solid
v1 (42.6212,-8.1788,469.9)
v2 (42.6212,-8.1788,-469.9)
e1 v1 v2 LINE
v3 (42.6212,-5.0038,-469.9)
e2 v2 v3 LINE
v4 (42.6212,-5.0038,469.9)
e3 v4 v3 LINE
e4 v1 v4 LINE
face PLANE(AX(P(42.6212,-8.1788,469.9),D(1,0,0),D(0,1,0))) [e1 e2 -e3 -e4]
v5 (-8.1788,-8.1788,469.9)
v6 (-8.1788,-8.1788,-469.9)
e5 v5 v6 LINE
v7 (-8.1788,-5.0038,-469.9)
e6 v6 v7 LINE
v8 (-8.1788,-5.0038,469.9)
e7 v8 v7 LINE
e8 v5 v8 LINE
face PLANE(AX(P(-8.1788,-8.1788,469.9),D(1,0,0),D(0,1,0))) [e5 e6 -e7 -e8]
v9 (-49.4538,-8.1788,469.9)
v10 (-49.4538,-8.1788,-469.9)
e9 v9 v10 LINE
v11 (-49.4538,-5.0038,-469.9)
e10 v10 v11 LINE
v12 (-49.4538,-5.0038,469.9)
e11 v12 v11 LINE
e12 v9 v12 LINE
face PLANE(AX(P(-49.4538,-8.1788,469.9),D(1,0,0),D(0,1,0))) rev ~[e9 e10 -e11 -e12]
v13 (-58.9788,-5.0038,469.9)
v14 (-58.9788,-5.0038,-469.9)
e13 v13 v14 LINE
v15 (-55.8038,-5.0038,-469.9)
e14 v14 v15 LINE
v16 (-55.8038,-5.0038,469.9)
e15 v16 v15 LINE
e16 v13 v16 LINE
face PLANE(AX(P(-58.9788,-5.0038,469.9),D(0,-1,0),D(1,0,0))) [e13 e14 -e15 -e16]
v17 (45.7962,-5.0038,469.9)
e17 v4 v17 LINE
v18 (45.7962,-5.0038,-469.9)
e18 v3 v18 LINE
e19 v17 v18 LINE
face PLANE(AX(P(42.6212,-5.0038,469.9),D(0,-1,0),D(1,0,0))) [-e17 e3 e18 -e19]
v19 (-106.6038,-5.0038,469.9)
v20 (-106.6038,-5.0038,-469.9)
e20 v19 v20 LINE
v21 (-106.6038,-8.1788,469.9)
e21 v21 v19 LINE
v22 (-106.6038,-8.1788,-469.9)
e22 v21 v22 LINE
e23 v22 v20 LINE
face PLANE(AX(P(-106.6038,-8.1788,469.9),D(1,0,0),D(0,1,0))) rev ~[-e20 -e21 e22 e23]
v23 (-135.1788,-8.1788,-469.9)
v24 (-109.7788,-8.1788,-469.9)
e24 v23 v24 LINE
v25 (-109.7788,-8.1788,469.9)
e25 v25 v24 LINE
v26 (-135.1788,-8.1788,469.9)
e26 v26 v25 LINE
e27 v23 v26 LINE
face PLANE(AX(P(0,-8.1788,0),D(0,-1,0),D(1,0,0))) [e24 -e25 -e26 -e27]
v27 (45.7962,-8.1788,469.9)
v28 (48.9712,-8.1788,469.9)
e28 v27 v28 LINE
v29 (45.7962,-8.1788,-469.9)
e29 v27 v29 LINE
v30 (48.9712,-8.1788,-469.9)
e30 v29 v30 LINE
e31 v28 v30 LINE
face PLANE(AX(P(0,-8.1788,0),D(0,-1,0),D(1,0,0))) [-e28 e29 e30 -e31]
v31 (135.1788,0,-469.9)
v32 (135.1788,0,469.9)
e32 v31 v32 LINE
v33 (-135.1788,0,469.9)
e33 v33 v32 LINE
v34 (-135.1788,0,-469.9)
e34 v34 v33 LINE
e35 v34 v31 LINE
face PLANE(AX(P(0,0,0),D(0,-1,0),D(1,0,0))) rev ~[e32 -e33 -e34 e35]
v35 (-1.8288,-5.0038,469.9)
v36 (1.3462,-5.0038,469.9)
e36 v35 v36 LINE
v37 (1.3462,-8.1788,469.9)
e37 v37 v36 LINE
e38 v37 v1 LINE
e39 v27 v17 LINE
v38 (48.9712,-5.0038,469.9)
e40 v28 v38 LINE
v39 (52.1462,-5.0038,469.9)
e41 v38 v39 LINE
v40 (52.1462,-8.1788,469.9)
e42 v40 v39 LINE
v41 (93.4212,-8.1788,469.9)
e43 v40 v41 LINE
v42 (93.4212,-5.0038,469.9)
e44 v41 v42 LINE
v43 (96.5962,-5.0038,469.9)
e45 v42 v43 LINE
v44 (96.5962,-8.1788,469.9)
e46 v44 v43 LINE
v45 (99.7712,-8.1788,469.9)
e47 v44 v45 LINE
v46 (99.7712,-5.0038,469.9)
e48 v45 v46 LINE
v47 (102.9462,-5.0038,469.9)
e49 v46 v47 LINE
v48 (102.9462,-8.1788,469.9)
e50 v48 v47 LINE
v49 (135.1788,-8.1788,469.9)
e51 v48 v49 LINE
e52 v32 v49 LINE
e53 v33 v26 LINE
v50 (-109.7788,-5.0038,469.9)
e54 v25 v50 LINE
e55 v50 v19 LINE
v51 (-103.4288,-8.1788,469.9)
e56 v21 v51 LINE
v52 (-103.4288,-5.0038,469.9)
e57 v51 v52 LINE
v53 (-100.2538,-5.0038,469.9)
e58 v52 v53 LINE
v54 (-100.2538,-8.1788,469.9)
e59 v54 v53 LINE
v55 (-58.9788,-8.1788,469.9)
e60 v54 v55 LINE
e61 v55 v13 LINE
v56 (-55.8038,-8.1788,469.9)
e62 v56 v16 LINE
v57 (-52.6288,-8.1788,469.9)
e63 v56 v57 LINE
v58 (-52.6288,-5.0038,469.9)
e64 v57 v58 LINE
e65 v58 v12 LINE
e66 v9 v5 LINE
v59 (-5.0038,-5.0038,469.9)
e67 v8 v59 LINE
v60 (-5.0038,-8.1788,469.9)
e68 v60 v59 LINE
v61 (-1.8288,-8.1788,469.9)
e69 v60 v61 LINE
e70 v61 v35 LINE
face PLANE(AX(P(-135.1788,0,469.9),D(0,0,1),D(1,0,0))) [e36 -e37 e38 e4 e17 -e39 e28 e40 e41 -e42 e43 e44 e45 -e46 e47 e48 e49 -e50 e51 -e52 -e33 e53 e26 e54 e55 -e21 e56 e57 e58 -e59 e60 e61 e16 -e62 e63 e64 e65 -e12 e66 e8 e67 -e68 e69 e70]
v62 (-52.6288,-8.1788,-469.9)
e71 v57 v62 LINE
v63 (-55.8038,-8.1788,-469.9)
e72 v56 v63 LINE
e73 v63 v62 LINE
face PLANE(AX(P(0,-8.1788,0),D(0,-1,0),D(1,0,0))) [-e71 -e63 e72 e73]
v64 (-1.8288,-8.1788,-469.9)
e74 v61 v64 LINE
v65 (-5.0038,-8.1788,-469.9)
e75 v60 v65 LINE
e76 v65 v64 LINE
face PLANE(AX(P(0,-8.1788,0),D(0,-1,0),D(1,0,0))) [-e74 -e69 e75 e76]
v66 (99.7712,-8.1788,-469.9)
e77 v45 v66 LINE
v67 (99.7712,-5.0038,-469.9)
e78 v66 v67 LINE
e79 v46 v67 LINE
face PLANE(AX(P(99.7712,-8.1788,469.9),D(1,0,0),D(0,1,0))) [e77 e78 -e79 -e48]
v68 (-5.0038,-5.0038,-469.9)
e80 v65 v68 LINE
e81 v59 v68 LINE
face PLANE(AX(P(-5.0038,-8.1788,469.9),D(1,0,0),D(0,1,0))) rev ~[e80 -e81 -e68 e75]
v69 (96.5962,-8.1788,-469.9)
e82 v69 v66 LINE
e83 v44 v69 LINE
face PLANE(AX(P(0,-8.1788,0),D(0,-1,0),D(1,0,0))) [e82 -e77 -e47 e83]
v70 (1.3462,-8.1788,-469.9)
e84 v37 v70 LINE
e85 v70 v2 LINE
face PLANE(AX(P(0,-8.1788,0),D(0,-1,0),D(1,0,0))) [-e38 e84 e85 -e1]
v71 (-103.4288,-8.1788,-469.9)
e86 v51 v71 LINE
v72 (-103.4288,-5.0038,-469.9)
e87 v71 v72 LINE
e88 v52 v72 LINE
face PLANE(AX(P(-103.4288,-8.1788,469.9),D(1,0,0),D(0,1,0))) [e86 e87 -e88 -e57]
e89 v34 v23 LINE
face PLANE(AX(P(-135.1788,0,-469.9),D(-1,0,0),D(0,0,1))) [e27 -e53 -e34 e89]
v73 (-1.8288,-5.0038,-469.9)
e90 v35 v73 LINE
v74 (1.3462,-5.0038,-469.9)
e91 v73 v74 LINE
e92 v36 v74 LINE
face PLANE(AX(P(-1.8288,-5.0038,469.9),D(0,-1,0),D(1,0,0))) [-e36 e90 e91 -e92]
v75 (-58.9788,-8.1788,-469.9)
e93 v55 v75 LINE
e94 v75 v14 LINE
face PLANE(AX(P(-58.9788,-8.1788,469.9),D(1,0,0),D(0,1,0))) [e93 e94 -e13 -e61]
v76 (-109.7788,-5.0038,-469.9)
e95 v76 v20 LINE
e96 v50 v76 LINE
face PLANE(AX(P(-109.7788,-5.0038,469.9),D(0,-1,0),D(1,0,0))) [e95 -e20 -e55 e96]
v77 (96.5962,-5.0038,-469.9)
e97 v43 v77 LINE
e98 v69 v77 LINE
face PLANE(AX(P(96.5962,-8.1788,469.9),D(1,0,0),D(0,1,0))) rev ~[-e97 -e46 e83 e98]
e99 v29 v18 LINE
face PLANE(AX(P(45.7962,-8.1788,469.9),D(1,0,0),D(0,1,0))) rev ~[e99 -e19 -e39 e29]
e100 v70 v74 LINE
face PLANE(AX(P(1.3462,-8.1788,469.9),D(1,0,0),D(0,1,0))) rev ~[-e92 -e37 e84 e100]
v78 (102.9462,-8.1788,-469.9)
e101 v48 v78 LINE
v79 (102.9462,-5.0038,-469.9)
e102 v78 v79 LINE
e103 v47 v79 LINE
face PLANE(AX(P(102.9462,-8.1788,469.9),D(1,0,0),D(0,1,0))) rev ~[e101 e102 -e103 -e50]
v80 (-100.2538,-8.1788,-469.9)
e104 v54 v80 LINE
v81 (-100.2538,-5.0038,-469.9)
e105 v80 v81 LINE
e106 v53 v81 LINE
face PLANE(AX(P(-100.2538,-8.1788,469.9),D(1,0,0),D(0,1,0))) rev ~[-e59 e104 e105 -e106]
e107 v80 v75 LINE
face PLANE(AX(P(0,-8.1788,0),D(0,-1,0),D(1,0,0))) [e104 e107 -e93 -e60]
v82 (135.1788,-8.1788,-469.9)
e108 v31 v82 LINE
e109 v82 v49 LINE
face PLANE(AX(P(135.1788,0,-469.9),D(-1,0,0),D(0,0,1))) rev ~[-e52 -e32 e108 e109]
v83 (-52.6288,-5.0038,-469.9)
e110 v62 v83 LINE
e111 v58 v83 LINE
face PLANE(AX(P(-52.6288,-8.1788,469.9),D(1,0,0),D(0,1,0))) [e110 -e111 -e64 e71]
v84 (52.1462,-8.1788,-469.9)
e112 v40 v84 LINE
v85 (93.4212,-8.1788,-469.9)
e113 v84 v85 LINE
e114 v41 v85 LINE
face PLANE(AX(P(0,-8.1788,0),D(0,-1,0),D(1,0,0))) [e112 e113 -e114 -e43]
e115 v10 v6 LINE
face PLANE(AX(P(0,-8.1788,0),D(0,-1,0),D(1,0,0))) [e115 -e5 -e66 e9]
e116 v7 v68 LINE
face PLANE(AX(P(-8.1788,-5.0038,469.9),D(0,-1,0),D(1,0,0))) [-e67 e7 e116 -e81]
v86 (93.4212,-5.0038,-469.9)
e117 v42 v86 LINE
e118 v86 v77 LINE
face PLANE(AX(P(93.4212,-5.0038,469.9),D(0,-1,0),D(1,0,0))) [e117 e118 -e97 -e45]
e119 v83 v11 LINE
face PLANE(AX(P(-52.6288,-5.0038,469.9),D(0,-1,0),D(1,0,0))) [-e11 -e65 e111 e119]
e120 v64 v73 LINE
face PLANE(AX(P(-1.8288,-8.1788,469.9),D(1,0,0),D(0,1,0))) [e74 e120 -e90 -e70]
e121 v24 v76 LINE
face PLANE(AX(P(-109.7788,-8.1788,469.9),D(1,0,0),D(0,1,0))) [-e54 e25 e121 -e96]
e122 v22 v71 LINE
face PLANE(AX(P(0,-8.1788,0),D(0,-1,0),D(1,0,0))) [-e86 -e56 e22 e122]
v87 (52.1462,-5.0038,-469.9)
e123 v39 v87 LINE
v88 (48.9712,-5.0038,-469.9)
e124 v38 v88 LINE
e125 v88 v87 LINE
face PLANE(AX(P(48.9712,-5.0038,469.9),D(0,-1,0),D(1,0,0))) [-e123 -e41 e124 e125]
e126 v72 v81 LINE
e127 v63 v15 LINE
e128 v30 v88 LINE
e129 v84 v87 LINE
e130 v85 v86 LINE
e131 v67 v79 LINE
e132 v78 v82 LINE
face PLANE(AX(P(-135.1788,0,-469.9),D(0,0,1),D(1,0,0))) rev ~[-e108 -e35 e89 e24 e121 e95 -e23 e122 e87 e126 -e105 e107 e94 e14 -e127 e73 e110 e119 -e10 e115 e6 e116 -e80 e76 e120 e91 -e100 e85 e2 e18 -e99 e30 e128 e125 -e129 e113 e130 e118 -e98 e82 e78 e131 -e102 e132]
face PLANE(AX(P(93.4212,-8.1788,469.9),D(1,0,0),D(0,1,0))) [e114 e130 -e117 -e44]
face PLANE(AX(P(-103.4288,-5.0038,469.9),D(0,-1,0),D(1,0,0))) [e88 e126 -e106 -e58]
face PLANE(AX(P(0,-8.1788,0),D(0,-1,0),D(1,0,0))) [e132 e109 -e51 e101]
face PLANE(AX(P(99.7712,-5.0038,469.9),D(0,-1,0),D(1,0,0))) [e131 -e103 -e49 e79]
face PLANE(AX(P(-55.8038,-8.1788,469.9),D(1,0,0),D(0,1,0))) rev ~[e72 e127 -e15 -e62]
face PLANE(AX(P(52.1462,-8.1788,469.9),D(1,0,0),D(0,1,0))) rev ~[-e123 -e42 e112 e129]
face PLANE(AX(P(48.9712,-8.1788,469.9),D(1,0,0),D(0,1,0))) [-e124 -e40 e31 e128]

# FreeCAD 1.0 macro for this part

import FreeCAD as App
import Part
import Sketcher

V = App.Vector
Q = App.Units.Quantity


def add_polygon(sketch, points):
    """Adds a closed chain of lines whose ends are joined by coincident constraints."""
    first, n = sketch.GeometryCount, len(points)
    for a, b in zip(points, points[1:] + points[:1]):
        sketch.addGeometry(Part.LineSegment(App.Vector(*a, 0), App.Vector(*b, 0)), False)
    for i in range(n):
        sketch.addConstraint(Sketcher.Constraint("Coincident", first + i, 2, first + (i + 1) % n, 1))

doc = App.newDocument("Part")
body = doc.addObject("PartDesign::Body", "Body")

sketch1 = body.newObject("Sketcher::SketchObject", "Sketch")
sketch1.AttachmentSupport = (doc.getObject("XZ_Plane"), [""])
sketch1.MapMode = "FlatFace"
add_polygon(sketch1, [(-135, 470), (-135, -470), (135, -470), (135, 470)])
sketch1.addConstraint([
    Sketcher.Constraint("Vertical", 0),
    Sketcher.Constraint("Horizontal", 1),
    Sketcher.Constraint("Vertical", 2),
    Sketcher.Constraint("Horizontal", 3),
    Sketcher.Constraint("Symmetric", 0, 2, 2, 2, -1, 1),
    Sketcher.Constraint("DistanceY", 0, 2, 0, 1, Q("37 in")),
    Sketcher.Constraint("DistanceX", 1, 1, 1, 2, Q("10.644 in")),
])
pad1 = body.newObject("PartDesign::Pad", "Pad")
pad1.Profile = sketch1
pad1.Length = Q("0.322 in")

sketch2 = body.newObject("Sketcher::SketchObject", "Sketch001")
sketch2.AttachmentSupport = (doc.getObject("XY_Plane"), [""])
sketch2.MapMode = "FlatFace"
sketch2.AttachmentOffset = App.Placement(V(0, 0, 18.5 * 25.4), App.Rotation())
add_polygon(sketch2, [(-109.8, -5), (-109.8, -8.2), (-106.6, -8.2), (-106.6, -5)])
add_polygon(sketch2, [(-103.4, -5), (-103.4, -8.2), (-100.3, -8.2), (-100.3, -5)])
add_polygon(sketch2, [(-59, -5), (-59, -8.2), (-55.8, -8.2), (-55.8, -5)])
add_polygon(sketch2, [(-52.6, -5), (-52.6, -8.2), (-49.5, -8.2), (-49.5, -5)])
add_polygon(sketch2, [(-8.2, -5), (-8.2, -8.2), (-5, -8.2), (-5, -5)])
add_polygon(sketch2, [(-1.8, -5), (-1.8, -8.2), (1.3, -8.2), (1.3, -5)])
add_polygon(sketch2, [(42.6, -5), (42.6, -8.2), (45.8, -8.2), (45.8, -5)])
add_polygon(sketch2, [(49, -5), (49, -8.2), (52.1, -8.2), (52.1, -5)])
add_polygon(sketch2, [(93.4, -5), (93.4, -8.2), (96.6, -8.2), (96.6, -5)])
add_polygon(sketch2, [(99.8, -5), (99.8, -8.2), (102.9, -8.2), (102.9, -5)])
sketch2.addConstraint([
    Sketcher.Constraint("Vertical", 0),
    Sketcher.Constraint("Horizontal", 1),
    Sketcher.Constraint("Vertical", 2),
    Sketcher.Constraint("Horizontal", 3),
    Sketcher.Constraint("Vertical", 4),
    Sketcher.Constraint("Horizontal", 5),
    Sketcher.Constraint("Vertical", 6),
    Sketcher.Constraint("Horizontal", 7),
    Sketcher.Constraint("Vertical", 8),
    Sketcher.Constraint("Horizontal", 9),
    Sketcher.Constraint("Vertical", 10),
    Sketcher.Constraint("Horizontal", 11),
    Sketcher.Constraint("Vertical", 12),
    Sketcher.Constraint("Horizontal", 13),
    Sketcher.Constraint("Vertical", 14),
    Sketcher.Constraint("Horizontal", 15),
    Sketcher.Constraint("Vertical", 16),
    Sketcher.Constraint("Horizontal", 17),
    Sketcher.Constraint("Vertical", 18),
    Sketcher.Constraint("Horizontal", 19),
    Sketcher.Constraint("Vertical", 20),
    Sketcher.Constraint("Horizontal", 21),
    Sketcher.Constraint("Vertical", 22),
    Sketcher.Constraint("Horizontal", 23),
    Sketcher.Constraint("Vertical", 24),
    Sketcher.Constraint("Horizontal", 25),
    Sketcher.Constraint("Vertical", 26),
    Sketcher.Constraint("Horizontal", 27),
    Sketcher.Constraint("Vertical", 28),
    Sketcher.Constraint("Horizontal", 29),
    Sketcher.Constraint("Vertical", 30),
    Sketcher.Constraint("Horizontal", 31),
    Sketcher.Constraint("Vertical", 32),
    Sketcher.Constraint("Horizontal", 33),
    Sketcher.Constraint("Vertical", 34),
    Sketcher.Constraint("Horizontal", 35),
    Sketcher.Constraint("Vertical", 36),
    Sketcher.Constraint("Horizontal", 37),
    Sketcher.Constraint("Vertical", 38),
    Sketcher.Constraint("Horizontal", 39),
    Sketcher.Constraint("Horizontal", 1, 2, 4, 2),
    Sketcher.Constraint("Horizontal", 3, 2, 6, 2),
    Sketcher.Constraint("Horizontal", 5, 2, 8, 2),
    Sketcher.Constraint("Horizontal", 7, 2, 10, 2),
    Sketcher.Constraint("Horizontal", 9, 2, 12, 2),
    Sketcher.Constraint("Horizontal", 11, 2, 14, 2),
    Sketcher.Constraint("Horizontal", 13, 2, 16, 2),
    Sketcher.Constraint("Horizontal", 15, 2, 18, 2),
    Sketcher.Constraint("Horizontal", 17, 2, 20, 2),
    Sketcher.Constraint("Horizontal", 19, 2, 22, 2),
    Sketcher.Constraint("Horizontal", 21, 2, 24, 2),
    Sketcher.Constraint("Horizontal", 23, 2, 26, 2),
    Sketcher.Constraint("Horizontal", 25, 2, 28, 2),
    Sketcher.Constraint("Horizontal", 27, 2, 30, 2),
    Sketcher.Constraint("Horizontal", 29, 2, 32, 2),
    Sketcher.Constraint("Horizontal", 31, 2, 34, 2),
    Sketcher.Constraint("Horizontal", 33, 2, 36, 2),
    Sketcher.Constraint("Horizontal", 35, 2, 38, 2),
    Sketcher.Constraint("Equal", 3, 5),
    Sketcher.Constraint("Equal", 7, 9),
    Sketcher.Constraint("Equal", 11, 13),
    Sketcher.Constraint("Equal", 15, 17),
    Sketcher.Constraint("Equal", 19, 21),
    Sketcher.Constraint("Equal", 23, 25),
    Sketcher.Constraint("Equal", 27, 29),
    Sketcher.Constraint("Equal", 31, 33),
    Sketcher.Constraint("Equal", 35, 37),
    Sketcher.Constraint("Equal", 39, 0),
    Sketcher.Constraint("DistanceX", 1, 1, 1, 2, Q("0.125 in")),
    Sketcher.Constraint("DistanceX", 0, 2, 4, 2, Q("0.25 in")),
    Sketcher.Constraint("DistanceX", 4, 2, 8, 2, Q("1.75 in")),
    Sketcher.Constraint("DistanceX", 8, 2, 12, 2, Q("0.25 in")),
    Sketcher.Constraint("DistanceX", 12, 2, 16, 2, Q("1.75 in")),
    Sketcher.Constraint("DistanceX", 16, 2, 20, 2, Q("0.25 in")),
    Sketcher.Constraint("DistanceX", 20, 2, 24, 2, Q("1.75 in")),
    Sketcher.Constraint("DistanceX", 24, 2, 28, 2, Q("0.25 in")),
    Sketcher.Constraint("DistanceX", 28, 2, 32, 2, Q("1.75 in")),
    Sketcher.Constraint("DistanceX", 32, 2, 36, 2, Q("0.25 in")),
    Sketcher.Constraint("DistanceX", 0, 2, -1, 1, Q("4.322 in")),
    Sketcher.Constraint("DistanceY", 0, 2, -1, 1, Q("0.322 in")),
])
pocket1 = body.newObject("PartDesign::Pocket", "Pocket")
pocket1.Profile = sketch2
pocket1.Type = "ThroughAll"

doc.recompute()
